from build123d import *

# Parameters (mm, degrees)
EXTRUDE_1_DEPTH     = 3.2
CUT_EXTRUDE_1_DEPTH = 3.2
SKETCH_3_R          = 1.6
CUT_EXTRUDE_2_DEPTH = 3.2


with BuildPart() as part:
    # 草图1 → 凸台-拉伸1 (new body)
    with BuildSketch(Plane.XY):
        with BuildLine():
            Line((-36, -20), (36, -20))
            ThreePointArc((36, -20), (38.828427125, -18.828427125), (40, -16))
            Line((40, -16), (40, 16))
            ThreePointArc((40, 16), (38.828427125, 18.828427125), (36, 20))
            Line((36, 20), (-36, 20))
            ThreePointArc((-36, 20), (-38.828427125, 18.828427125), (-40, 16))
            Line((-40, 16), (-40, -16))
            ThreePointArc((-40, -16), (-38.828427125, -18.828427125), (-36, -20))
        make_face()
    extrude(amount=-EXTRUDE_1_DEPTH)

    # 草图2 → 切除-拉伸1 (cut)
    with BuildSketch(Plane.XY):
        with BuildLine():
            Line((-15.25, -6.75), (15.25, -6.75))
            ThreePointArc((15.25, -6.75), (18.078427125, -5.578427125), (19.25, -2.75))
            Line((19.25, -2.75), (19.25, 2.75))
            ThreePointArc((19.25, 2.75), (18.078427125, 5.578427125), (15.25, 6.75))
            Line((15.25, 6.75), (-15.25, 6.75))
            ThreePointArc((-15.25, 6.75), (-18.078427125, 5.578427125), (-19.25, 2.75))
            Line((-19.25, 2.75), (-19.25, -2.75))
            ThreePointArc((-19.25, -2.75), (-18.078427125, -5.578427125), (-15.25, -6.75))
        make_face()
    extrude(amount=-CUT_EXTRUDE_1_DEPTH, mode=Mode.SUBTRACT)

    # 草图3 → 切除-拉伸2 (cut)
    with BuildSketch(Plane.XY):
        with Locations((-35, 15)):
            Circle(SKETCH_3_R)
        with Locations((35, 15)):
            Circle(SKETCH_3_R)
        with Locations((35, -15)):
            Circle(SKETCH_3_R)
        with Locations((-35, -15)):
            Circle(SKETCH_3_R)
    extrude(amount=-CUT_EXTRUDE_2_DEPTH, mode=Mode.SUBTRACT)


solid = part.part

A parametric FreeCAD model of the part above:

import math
import FreeCAD as App
import Part
import Sketcher

V = App.Vector

doc = App.newDocument("Part")
body = doc.addObject("PartDesign::Body", "Body")

# Sketch on XY plane
sketch1 = body.newObject("Sketcher::SketchObject", "Sketch")
sketch1.AttachmentSupport = (doc.getObject("XY_Plane"), [""])
sketch1.MapMode = "FlatFace"
sketch1.addGeometry([
    Part.LineSegment(V(-36, -20, 0), V(36, -20, 0)),  # 0
    Part.ArcOfCircle(Part.Circle(V(36, -16, 0), V(0, 0, 1), 4), math.radians(-90), math.radians(0)),  # 1
    Part.LineSegment(V(40, -16, 0), V(40, 16, 0)),  # 2
    Part.ArcOfCircle(Part.Circle(V(36, 16, 0), V(0, 0, 1), 4), math.radians(0), math.radians(90)),  # 3
    Part.LineSegment(V(36, 20, 0), V(-36, 20, 0)),  # 4
    Part.ArcOfCircle(Part.Circle(V(-36, 16, 0), V(0, 0, 1), 4), math.radians(90), math.radians(180)),  # 5
    Part.LineSegment(V(-40, 16, 0), V(-40, -16, 0)),  # 6
    Part.ArcOfCircle(Part.Circle(V(-36, -16, 0), V(0, 0, 1), 4), math.radians(180), math.radians(270)),  # 7
], False)
sketch1.addConstraint([
    Sketcher.Constraint("Tangent", 0, 2, 1, 1),
    Sketcher.Constraint("Tangent", 1, 2, 2, 1),
    Sketcher.Constraint("Tangent", 2, 2, 3, 1),
    Sketcher.Constraint("Tangent", 3, 2, 4, 1),
    Sketcher.Constraint("Tangent", 4, 2, 5, 1),
    Sketcher.Constraint("Tangent", 5, 2, 6, 1),
    Sketcher.Constraint("Tangent", 6, 2, 7, 1),
    Sketcher.Constraint("Tangent", 7, 2, 0, 1),
    Sketcher.Constraint("Horizontal", 0),
    Sketcher.Constraint("Vertical", 2),
    Sketcher.Constraint("Horizontal", 4),
    Sketcher.Constraint("Vertical", 6),
    Sketcher.Constraint("Equal", 1, 3),
    Sketcher.Constraint("Equal", 3, 5),
    Sketcher.Constraint("Equal", 5, 7),
    Sketcher.Constraint("Symmetric", 1, 3, 5, 3, -1, 1),
    Sketcher.Constraint("Radius", 1, 4.0),
    Sketcher.Constraint("DistanceX", 0, 1, 0, 2, 72.0),
    Sketcher.Constraint("DistanceY", 2, 1, 2, 2, 32.0),
])
pad1 = body.newObject("PartDesign::Pad", "Pad")
pad1.Profile = sketch1
pad1.Length = 3.2
pad1.Reversed = True

# Sketch on XY plane
sketch2 = body.newObject("Sketcher::SketchObject", "Sketch001")
sketch2.AttachmentSupport = (doc.getObject("XY_Plane"), [""])
sketch2.MapMode = "FlatFace"
sketch2.addGeometry([
    Part.LineSegment(V(-15.25, -6.75, 0), V(15.25, -6.75, 0)),  # 0
    Part.ArcOfCircle(Part.Circle(V(15.25, -2.75, 0), V(0, 0, 1), 4), math.radians(-90), math.radians(0)),  # 1
    Part.LineSegment(V(19.25, -2.75, 0), V(19.25, 2.75, 0)),  # 2
    Part.ArcOfCircle(Part.Circle(V(15.25, 2.75, 0), V(0, 0, 1), 4), math.radians(0), math.radians(90)),  # 3
    Part.LineSegment(V(15.25, 6.75, 0), V(-15.25, 6.75, 0)),  # 4
    Part.ArcOfCircle(Part.Circle(V(-15.25, 2.75, 0), V(0, 0, 1), 4), math.radians(90), math.radians(180)),  # 5
    Part.LineSegment(V(-19.25, 2.75, 0), V(-19.25, -2.75, 0)),  # 6
    Part.ArcOfCircle(Part.Circle(V(-15.25, -2.75, 0), V(0, 0, 1), 4), math.radians(180), math.radians(270)),  # 7
], False)
sketch2.addConstraint([
    Sketcher.Constraint("Tangent", 0, 2, 1, 1),
    Sketcher.Constraint("Tangent", 1, 2, 2, 1),
    Sketcher.Constraint("Tangent", 2, 2, 3, 1),
    Sketcher.Constraint("Tangent", 3, 2, 4, 1),
    Sketcher.Constraint("Tangent", 4, 2, 5, 1),
    Sketcher.Constraint("Tangent", 5, 2, 6, 1),
    Sketcher.Constraint("Tangent", 6, 2, 7, 1),
    Sketcher.Constraint("Tangent", 7, 2, 0, 1),
    Sketcher.Constraint("Horizontal", 0),
    Sketcher.Constraint("Vertical", 2),
    Sketcher.Constraint("Horizontal", 4),
    Sketcher.Constraint("Vertical", 6),
    Sketcher.Constraint("Equal", 1, 3),
    Sketcher.Constraint("Equal", 3, 5),
    Sketcher.Constraint("Equal", 5, 7),
    Sketcher.Constraint("Symmetric", 1, 3, 5, 3, -1, 1),
    Sketcher.Constraint("Radius", 1, 4.0),
    Sketcher.Constraint("DistanceX", 0, 1, 0, 2, 30.5),
    Sketcher.Constraint("DistanceY", 2, 1, 2, 2, 5.5),
])
pocket1 = body.newObject("PartDesign::Pocket", "Pocket")
pocket1.Profile = sketch2
pocket1.Length = 3.2

# Sketch on XY plane
sketch3 = body.newObject("Sketcher::SketchObject", "Sketch002")
sketch3.AttachmentSupport = (doc.getObject("XY_Plane"), [""])
sketch3.MapMode = "FlatFace"
sketch3.addGeometry([
    Part.Circle(V(-35, 15, 0), V(0, 0, 1), 1.6),
    Part.Circle(V(35, 15, 0), V(0, 0, 1), 1.6),
    Part.Circle(V(35, -15, 0), V(0, 0, 1), 1.6),
    Part.Circle(V(-35, -15, 0), V(0, 0, 1), 1.6),
], False)
sketch3.addConstraint([
    Sketcher.Constraint("Equal", 0, 1),
    Sketcher.Constraint("Equal", 1, 2),
    Sketcher.Constraint("Equal", 2, 3),
    Sketcher.Constraint("Symmetric", 0, 3, 2, 3, -1, 1),
    Sketcher.Constraint("Symmetric", 1, 3, 3, 3, -1, 1),
    Sketcher.Constraint("Symmetric", 0, 3, 1, 3, -2),
    Sketcher.Constraint("Diameter", 0, 3.2),
    Sketcher.Constraint("DistanceX", 0, 3, -1, 1, 35.0),
    Sketcher.Constraint("DistanceY", -1, 1, 0, 3, 15.0),
])
pocket2 = body.newObject("PartDesign::Pocket", "Pocket001")
pocket2.Profile = sketch3
pocket2.Length = 3.2

doc.recompute()
